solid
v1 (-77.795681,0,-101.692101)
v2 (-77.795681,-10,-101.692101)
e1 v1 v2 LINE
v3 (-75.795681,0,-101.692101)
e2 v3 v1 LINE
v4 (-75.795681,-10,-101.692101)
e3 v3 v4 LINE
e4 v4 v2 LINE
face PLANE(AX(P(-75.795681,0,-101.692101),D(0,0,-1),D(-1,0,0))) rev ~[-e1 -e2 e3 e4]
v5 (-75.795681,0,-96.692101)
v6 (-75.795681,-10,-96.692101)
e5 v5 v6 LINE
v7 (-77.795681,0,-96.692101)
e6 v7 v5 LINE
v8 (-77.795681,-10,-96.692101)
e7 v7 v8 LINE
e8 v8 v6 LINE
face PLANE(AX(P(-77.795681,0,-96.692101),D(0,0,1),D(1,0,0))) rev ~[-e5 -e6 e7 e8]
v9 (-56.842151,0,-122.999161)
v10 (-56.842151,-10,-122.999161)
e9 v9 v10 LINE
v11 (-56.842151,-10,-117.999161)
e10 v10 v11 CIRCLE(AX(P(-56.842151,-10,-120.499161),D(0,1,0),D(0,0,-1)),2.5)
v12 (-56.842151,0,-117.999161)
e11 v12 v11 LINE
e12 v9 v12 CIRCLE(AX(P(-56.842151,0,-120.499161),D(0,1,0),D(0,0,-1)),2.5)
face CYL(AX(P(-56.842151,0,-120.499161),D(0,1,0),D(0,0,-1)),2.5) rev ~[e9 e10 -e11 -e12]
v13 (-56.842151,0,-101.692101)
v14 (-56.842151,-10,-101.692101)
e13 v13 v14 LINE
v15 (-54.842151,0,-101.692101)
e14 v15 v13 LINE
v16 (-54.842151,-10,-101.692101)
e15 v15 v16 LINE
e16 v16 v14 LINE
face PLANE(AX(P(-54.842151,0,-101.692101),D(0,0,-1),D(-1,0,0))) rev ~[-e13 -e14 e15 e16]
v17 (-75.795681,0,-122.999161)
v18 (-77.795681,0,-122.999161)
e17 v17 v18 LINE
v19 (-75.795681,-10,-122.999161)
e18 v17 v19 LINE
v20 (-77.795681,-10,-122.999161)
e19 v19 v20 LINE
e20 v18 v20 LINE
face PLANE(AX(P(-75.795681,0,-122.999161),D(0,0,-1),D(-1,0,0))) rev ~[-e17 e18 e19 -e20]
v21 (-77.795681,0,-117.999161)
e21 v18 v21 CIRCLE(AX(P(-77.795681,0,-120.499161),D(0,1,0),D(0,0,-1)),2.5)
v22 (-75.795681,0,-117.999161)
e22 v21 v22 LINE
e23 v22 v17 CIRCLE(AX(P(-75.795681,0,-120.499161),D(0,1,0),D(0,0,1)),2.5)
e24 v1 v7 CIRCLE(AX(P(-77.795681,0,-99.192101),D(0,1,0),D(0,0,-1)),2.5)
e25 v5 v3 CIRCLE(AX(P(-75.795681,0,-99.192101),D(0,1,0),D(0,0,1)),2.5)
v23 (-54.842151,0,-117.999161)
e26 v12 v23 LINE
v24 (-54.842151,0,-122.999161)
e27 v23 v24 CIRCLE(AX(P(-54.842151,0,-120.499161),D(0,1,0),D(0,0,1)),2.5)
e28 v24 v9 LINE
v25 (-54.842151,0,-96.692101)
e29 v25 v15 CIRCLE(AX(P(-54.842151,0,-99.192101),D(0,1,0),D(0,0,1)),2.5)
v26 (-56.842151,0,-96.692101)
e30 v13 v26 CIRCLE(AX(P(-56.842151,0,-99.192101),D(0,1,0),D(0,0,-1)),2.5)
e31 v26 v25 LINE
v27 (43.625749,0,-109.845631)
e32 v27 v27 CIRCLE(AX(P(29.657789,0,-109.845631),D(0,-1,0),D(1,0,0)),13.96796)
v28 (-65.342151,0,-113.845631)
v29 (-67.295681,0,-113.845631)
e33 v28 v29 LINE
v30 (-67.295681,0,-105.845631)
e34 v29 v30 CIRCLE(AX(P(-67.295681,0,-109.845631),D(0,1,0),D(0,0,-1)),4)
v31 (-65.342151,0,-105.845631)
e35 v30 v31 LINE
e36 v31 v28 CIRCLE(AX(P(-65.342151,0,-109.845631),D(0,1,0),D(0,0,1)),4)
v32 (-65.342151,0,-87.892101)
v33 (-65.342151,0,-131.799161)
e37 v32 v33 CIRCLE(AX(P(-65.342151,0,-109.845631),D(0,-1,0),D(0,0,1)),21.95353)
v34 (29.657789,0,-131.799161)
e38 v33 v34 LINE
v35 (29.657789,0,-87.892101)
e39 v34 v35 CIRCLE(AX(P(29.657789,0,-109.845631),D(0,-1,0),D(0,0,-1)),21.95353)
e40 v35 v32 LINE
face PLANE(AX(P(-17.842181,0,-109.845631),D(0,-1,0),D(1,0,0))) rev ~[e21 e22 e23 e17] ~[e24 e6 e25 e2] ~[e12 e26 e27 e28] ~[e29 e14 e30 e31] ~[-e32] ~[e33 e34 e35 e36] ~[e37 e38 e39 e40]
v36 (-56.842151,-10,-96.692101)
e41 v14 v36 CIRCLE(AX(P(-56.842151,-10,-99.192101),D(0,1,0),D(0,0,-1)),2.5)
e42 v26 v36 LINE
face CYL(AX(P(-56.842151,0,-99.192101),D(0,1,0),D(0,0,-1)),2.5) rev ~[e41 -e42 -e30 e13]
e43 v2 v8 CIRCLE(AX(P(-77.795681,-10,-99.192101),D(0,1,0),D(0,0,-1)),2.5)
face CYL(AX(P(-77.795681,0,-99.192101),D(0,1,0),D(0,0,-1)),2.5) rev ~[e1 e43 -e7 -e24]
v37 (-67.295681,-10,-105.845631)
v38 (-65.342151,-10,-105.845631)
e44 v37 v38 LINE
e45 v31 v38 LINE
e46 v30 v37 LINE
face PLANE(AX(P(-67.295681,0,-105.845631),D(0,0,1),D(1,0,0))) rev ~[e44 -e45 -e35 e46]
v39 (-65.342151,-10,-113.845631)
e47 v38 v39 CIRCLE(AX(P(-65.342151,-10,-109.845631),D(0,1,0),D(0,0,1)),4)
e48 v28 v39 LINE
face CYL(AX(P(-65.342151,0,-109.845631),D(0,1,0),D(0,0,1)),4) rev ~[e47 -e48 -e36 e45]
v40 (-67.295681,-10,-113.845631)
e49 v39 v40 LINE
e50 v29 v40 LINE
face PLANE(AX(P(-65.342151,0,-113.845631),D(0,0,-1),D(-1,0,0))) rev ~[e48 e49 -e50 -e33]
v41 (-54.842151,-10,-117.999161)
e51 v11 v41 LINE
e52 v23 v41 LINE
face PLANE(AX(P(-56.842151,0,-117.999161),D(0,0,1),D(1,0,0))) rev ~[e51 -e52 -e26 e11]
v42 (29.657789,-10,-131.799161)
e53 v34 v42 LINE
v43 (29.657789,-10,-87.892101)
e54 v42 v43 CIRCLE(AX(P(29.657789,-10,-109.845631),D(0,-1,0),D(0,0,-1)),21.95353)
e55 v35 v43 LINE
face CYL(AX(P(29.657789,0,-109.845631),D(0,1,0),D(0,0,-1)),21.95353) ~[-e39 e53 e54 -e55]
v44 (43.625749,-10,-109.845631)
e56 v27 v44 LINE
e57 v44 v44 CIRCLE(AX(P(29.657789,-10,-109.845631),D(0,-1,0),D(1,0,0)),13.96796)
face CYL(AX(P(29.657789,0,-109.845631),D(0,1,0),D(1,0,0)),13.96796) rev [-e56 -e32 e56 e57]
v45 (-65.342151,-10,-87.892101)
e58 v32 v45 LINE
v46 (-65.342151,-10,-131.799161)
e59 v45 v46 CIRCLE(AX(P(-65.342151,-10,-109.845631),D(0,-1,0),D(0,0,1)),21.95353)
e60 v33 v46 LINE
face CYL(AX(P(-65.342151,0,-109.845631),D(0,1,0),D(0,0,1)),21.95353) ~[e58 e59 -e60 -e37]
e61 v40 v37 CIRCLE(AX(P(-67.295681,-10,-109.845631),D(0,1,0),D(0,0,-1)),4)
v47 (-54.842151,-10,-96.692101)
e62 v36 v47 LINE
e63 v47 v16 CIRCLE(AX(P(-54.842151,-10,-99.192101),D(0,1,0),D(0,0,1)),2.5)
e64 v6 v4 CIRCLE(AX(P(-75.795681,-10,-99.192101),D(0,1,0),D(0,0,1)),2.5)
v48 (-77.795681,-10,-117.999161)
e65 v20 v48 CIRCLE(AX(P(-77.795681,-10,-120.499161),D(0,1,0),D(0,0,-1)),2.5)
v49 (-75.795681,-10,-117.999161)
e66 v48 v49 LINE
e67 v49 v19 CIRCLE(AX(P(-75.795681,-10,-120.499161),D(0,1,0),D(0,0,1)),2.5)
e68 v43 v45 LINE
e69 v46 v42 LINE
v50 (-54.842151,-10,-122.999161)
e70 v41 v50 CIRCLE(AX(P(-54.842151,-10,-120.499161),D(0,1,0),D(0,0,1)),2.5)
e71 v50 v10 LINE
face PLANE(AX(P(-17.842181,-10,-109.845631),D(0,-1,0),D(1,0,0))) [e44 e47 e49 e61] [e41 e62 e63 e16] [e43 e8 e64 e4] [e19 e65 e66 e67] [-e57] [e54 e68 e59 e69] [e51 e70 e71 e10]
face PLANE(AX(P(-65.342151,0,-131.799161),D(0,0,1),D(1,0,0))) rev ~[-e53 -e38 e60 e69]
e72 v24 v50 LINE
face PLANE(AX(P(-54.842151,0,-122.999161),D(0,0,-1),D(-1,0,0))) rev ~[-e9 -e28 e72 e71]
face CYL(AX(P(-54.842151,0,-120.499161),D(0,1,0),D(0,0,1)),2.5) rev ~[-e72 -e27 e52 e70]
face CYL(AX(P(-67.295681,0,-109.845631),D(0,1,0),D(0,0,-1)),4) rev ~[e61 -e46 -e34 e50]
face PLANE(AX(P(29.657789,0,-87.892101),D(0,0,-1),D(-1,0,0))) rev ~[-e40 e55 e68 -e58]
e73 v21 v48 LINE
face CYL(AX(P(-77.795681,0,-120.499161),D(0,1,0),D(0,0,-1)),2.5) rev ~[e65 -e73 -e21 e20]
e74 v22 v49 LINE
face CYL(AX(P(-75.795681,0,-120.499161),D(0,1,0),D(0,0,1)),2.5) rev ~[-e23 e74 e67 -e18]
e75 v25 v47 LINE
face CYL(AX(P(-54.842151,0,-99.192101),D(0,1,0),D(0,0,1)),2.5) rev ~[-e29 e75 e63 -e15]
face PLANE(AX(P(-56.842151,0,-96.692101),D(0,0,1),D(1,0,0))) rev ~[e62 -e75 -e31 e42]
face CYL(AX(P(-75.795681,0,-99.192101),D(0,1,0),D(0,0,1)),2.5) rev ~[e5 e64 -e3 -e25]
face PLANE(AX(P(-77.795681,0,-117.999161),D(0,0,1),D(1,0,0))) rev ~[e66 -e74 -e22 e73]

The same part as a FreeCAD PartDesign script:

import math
import FreeCAD as App
import Part
import Sketcher
from FreeCAD import Vector
Q = App.Units.Quantity

doc = App.newDocument("Part")
body = doc.addObject("PartDesign::Body", "Body")

sketch1 = body.newObject("Sketcher::SketchObject", "Sketch")
sketch1.AttachmentSupport = (doc.getObject("XZ_Plane"), [""])
sketch1.MapMode = "FlatFace"
sketch1.addGeometry(Part.LineSegment(Vector(-65.3, -131.8, 0), Vector(29.7, -131.8, 0)), False)
sketch1.addGeometry(Part.ArcOfCircle(Part.Circle(Vector(29.7, -109.8, 0), Vector(0, 0, 1), 22), math.radians(-90), math.radians(90)), False)
sketch1.addGeometry(Part.LineSegment(Vector(29.7, -87.9, 0), Vector(-65.3, -87.9, 0)), False)
sketch1.addGeometry(Part.ArcOfCircle(Part.Circle(Vector(-65.3, -109.8, 0), Vector(0, 0, 1), 22), math.radians(90), math.radians(270)), False)
sketch1.addGeometry(Part.ArcOfCircle(Part.Circle(Vector(-75.8, -120.5, 0), Vector(0, 0, 1), 2.5), math.radians(-90), math.radians(90)), False)
sketch1.addGeometry(Part.LineSegment(Vector(-75.8, -123, 0), Vector(-77.8, -123, 0)), False)
sketch1.addGeometry(Part.ArcOfCircle(Part.Circle(Vector(-77.8, -120.5, 0), Vector(0, 0, 1), 2.5), math.radians(90), math.radians(270)), False)
sketch1.addGeometry(Part.LineSegment(Vector(-77.8, -118, 0), Vector(-75.8, -118, 0)), False)
sketch1.addGeometry(Part.LineSegment(Vector(-54.8, -123, 0), Vector(-56.8, -123, 0)), False)
sketch1.addGeometry(Part.ArcOfCircle(Part.Circle(Vector(-56.8, -120.5, 0), Vector(0, 0, 1), 2.5), math.radians(90), math.radians(270)), False)
sketch1.addGeometry(Part.LineSegment(Vector(-56.8, -118, 0), Vector(-54.8, -118, 0)), False)
sketch1.addGeometry(Part.ArcOfCircle(Part.Circle(Vector(-54.8, -120.5, 0), Vector(0, 0, 1), 2.5), math.radians(-90), math.radians(90)), False)
sketch1.addGeometry(Part.LineSegment(Vector(-65.3, -113.8, 0), Vector(-67.3, -113.8, 0)), False)
sketch1.addGeometry(Part.ArcOfCircle(Part.Circle(Vector(-67.3, -109.8, 0), Vector(0, 0, 1), 4), math.radians(90), math.radians(270)), False)
sketch1.addGeometry(Part.LineSegment(Vector(-67.3, -105.8, 0), Vector(-65.3, -105.8, 0)), False)
sketch1.addGeometry(Part.ArcOfCircle(Part.Circle(Vector(-65.3, -109.8, 0), Vector(0, 0, 1), 4), math.radians(-90), math.radians(90)), False)
sketch1.addGeometry(Part.Circle(Vector(29.7, -109.8, 0), Vector(0, 0, 1), 14), False)
sketch1.addGeometry(Part.ArcOfCircle(Part.Circle(Vector(-75.8, -99.2, 0), Vector(0, 0, 1), 2.5), math.radians(-90), math.radians(90)), False)
sketch1.addGeometry(Part.LineSegment(Vector(-75.8, -101.7, 0), Vector(-77.8, -101.7, 0)), False)
sketch1.addGeometry(Part.ArcOfCircle(Part.Circle(Vector(-77.8, -99.2, 0), Vector(0, 0, 1), 2.5), math.radians(90), math.radians(270)), False)
sketch1.addGeometry(Part.LineSegment(Vector(-77.8, -96.7, 0), Vector(-75.8, -96.7, 0)), False)
sketch1.addGeometry(Part.LineSegment(Vector(-56.8, -96.7, 0), Vector(-54.8, -96.7, 0)), False)
sketch1.addGeometry(Part.ArcOfCircle(Part.Circle(Vector(-54.8, -99.2, 0), Vector(0, 0, 1), 2.5), math.radians(-90), math.radians(90)), False)
sketch1.addGeometry(Part.LineSegment(Vector(-54.8, -101.7, 0), Vector(-56.8, -101.7, 0)), False)
sketch1.addGeometry(Part.ArcOfCircle(Part.Circle(Vector(-56.8, -99.2, 0), Vector(0, 0, 1), 2.5), math.radians(90), math.radians(270)), False)
sketch1.addConstraint(Sketcher.Constraint("Tangent", 0, 2, 1, 1))
sketch1.addConstraint(Sketcher.Constraint("Tangent", 1, 2, 2, 1))
sketch1.addConstraint(Sketcher.Constraint("Tangent", 2, 2, 3, 1))
sketch1.addConstraint(Sketcher.Constraint("Tangent", 3, 2, 0, 1))
sketch1.addConstraint(Sketcher.Constraint("Tangent", 4, 1, 5, 1))
sketch1.addConstraint(Sketcher.Constraint("Tangent", 5, 2, 6, 2))
sketch1.addConstraint(Sketcher.Constraint("Tangent", 6, 1, 7, 1))
sketch1.addConstraint(Sketcher.Constraint("Tangent", 7, 2, 4, 2))
sketch1.addConstraint(Sketcher.Constraint("Tangent", 8, 2, 9, 2))
sketch1.addConstraint(Sketcher.Constraint("Tangent", 9, 1, 10, 1))
sketch1.addConstraint(Sketcher.Constraint("Tangent", 10, 2, 11, 2))
sketch1.addConstraint(Sketcher.Constraint("Tangent", 11, 1, 8, 1))
sketch1.addConstraint(Sketcher.Constraint("Tangent", 12, 2, 13, 2))
sketch1.addConstraint(Sketcher.Constraint("Tangent", 13, 1, 14, 1))
sketch1.addConstraint(Sketcher.Constraint("Tangent", 14, 2, 15, 2))
sketch1.addConstraint(Sketcher.Constraint("Tangent", 15, 1, 12, 1))
sketch1.addConstraint(Sketcher.Constraint("Tangent", 17, 1, 18, 1))
sketch1.addConstraint(Sketcher.Constraint("Tangent", 18, 2, 19, 2))
sketch1.addConstraint(Sketcher.Constraint("Tangent", 19, 1, 20, 1))
sketch1.addConstraint(Sketcher.Constraint("Tangent", 20, 2, 17, 2))
sketch1.addConstraint(Sketcher.Constraint("Tangent", 21, 2, 22, 2))
sketch1.addConstraint(Sketcher.Constraint("Tangent", 22, 1, 23, 1))
sketch1.addConstraint(Sketcher.Constraint("Tangent", 23, 2, 24, 2))
sketch1.addConstraint(Sketcher.Constraint("Tangent", 24, 1, 21, 1))
sketch1.addConstraint(Sketcher.Constraint("Horizontal", 0))
sketch1.addConstraint(Sketcher.Constraint("Horizontal", 2))
sketch1.addConstraint(Sketcher.Constraint("Horizontal", 5))
sketch1.addConstraint(Sketcher.Constraint("Horizontal", 7))
sketch1.addConstraint(Sketcher.Constraint("Horizontal", 8))
sketch1.addConstraint(Sketcher.Constraint("Horizontal", 10))
sketch1.addConstraint(Sketcher.Constraint("Horizontal", 12))
sketch1.addConstraint(Sketcher.Constraint("Horizontal", 14))
sketch1.addConstraint(Sketcher.Constraint("Horizontal", 18))
sketch1.addConstraint(Sketcher.Constraint("Horizontal", 20))
sketch1.addConstraint(Sketcher.Constraint("Horizontal", 21))
sketch1.addConstraint(Sketcher.Constraint("Horizontal", 23))
sketch1.addConstraint(Sketcher.Constraint("Coincident", 15, 3, 3, 3))
sketch1.addConstraint(Sketcher.Constraint("Coincident", 16, 3, 1, 3))
sketch1.addConstraint(Sketcher.Constraint("Equal", 6, 9))
sketch1.addConstraint(Sketcher.Constraint("Equal", 11, 17))
sketch1.addConstraint(Sketcher.Constraint("Equal", 19, 22))
sketch1.addConstraint(Sketcher.Constraint("Horizontal", 6, 3, 9, 3))
sketch1.addConstraint(Sketcher.Constraint("Horizontal", 19, 3, 22, 3))
sketch1.addConstraint(Sketcher.Constraint("Vertical", 4, 3, 17, 3))
sketch1.addConstraint(Sketcher.Constraint("Vertical", 6, 3, 19, 3))
sketch1.addConstraint(Sketcher.Constraint("Vertical", 11, 3, 22, 3))
sketch1.addConstraint(Sketcher.Constraint("Vertical", 9, 3, 24, 3))
sketch1.addConstraint(Sketcher.Constraint("Equal", 7, 8))
sketch1.addConstraint(Sketcher.Constraint("Radius", 13, Q("4 mm")))
sketch1.addConstraint(Sketcher.Constraint("Radius", 4, Q("2.5 mm")))
sketch1.addConstraint(Sketcher.Constraint("DistanceX", 5, 2, 5, 1, Q("2 mm")))
sketch1.addConstraint(Sketcher.Constraint("DistanceX", 3, 3, 9, 3, Q("8.5 mm")))
sketch1.addConstraint(Sketcher.Constraint("DistanceX", 4, 3, 13, 3, Q("8.5 mm")))
sketch1.addConstraint(Sketcher.Constraint("DistanceY", 0, 2, 11, 3, Q("11.3 mm")))
sketch1.addConstraint(Sketcher.Constraint("DistanceY", 22, 3, 1, 2, Q("11.3 mm")))
sketch1.addConstraint(Sketcher.Constraint("Diameter", 16, Q("27.93592 mm")))
sketch1.addConstraint(Sketcher.Constraint("Radius", 1, Q("21.95353 mm")))
sketch1.addConstraint(Sketcher.Constraint("DistanceX", 0, 1, 0, 2, Q("94.99994 mm")))
sketch1.addConstraint(Sketcher.Constraint("DistanceX", 12, 2, 12, 1, Q("1.95353 mm")))
sketch1.addConstraint(Sketcher.Constraint("DistanceY", 17, 3, -1, 1, Q("99.192101 mm")))
sketch1.addConstraint(Sketcher.Constraint("DistanceX", -1, 1, 1, 3, Q("29.657789 mm")))
pad1 = body.newObject("PartDesign::Pad", "Pad")
pad1.Profile = sketch1
pad1.Length = 10

doc.recompute()
